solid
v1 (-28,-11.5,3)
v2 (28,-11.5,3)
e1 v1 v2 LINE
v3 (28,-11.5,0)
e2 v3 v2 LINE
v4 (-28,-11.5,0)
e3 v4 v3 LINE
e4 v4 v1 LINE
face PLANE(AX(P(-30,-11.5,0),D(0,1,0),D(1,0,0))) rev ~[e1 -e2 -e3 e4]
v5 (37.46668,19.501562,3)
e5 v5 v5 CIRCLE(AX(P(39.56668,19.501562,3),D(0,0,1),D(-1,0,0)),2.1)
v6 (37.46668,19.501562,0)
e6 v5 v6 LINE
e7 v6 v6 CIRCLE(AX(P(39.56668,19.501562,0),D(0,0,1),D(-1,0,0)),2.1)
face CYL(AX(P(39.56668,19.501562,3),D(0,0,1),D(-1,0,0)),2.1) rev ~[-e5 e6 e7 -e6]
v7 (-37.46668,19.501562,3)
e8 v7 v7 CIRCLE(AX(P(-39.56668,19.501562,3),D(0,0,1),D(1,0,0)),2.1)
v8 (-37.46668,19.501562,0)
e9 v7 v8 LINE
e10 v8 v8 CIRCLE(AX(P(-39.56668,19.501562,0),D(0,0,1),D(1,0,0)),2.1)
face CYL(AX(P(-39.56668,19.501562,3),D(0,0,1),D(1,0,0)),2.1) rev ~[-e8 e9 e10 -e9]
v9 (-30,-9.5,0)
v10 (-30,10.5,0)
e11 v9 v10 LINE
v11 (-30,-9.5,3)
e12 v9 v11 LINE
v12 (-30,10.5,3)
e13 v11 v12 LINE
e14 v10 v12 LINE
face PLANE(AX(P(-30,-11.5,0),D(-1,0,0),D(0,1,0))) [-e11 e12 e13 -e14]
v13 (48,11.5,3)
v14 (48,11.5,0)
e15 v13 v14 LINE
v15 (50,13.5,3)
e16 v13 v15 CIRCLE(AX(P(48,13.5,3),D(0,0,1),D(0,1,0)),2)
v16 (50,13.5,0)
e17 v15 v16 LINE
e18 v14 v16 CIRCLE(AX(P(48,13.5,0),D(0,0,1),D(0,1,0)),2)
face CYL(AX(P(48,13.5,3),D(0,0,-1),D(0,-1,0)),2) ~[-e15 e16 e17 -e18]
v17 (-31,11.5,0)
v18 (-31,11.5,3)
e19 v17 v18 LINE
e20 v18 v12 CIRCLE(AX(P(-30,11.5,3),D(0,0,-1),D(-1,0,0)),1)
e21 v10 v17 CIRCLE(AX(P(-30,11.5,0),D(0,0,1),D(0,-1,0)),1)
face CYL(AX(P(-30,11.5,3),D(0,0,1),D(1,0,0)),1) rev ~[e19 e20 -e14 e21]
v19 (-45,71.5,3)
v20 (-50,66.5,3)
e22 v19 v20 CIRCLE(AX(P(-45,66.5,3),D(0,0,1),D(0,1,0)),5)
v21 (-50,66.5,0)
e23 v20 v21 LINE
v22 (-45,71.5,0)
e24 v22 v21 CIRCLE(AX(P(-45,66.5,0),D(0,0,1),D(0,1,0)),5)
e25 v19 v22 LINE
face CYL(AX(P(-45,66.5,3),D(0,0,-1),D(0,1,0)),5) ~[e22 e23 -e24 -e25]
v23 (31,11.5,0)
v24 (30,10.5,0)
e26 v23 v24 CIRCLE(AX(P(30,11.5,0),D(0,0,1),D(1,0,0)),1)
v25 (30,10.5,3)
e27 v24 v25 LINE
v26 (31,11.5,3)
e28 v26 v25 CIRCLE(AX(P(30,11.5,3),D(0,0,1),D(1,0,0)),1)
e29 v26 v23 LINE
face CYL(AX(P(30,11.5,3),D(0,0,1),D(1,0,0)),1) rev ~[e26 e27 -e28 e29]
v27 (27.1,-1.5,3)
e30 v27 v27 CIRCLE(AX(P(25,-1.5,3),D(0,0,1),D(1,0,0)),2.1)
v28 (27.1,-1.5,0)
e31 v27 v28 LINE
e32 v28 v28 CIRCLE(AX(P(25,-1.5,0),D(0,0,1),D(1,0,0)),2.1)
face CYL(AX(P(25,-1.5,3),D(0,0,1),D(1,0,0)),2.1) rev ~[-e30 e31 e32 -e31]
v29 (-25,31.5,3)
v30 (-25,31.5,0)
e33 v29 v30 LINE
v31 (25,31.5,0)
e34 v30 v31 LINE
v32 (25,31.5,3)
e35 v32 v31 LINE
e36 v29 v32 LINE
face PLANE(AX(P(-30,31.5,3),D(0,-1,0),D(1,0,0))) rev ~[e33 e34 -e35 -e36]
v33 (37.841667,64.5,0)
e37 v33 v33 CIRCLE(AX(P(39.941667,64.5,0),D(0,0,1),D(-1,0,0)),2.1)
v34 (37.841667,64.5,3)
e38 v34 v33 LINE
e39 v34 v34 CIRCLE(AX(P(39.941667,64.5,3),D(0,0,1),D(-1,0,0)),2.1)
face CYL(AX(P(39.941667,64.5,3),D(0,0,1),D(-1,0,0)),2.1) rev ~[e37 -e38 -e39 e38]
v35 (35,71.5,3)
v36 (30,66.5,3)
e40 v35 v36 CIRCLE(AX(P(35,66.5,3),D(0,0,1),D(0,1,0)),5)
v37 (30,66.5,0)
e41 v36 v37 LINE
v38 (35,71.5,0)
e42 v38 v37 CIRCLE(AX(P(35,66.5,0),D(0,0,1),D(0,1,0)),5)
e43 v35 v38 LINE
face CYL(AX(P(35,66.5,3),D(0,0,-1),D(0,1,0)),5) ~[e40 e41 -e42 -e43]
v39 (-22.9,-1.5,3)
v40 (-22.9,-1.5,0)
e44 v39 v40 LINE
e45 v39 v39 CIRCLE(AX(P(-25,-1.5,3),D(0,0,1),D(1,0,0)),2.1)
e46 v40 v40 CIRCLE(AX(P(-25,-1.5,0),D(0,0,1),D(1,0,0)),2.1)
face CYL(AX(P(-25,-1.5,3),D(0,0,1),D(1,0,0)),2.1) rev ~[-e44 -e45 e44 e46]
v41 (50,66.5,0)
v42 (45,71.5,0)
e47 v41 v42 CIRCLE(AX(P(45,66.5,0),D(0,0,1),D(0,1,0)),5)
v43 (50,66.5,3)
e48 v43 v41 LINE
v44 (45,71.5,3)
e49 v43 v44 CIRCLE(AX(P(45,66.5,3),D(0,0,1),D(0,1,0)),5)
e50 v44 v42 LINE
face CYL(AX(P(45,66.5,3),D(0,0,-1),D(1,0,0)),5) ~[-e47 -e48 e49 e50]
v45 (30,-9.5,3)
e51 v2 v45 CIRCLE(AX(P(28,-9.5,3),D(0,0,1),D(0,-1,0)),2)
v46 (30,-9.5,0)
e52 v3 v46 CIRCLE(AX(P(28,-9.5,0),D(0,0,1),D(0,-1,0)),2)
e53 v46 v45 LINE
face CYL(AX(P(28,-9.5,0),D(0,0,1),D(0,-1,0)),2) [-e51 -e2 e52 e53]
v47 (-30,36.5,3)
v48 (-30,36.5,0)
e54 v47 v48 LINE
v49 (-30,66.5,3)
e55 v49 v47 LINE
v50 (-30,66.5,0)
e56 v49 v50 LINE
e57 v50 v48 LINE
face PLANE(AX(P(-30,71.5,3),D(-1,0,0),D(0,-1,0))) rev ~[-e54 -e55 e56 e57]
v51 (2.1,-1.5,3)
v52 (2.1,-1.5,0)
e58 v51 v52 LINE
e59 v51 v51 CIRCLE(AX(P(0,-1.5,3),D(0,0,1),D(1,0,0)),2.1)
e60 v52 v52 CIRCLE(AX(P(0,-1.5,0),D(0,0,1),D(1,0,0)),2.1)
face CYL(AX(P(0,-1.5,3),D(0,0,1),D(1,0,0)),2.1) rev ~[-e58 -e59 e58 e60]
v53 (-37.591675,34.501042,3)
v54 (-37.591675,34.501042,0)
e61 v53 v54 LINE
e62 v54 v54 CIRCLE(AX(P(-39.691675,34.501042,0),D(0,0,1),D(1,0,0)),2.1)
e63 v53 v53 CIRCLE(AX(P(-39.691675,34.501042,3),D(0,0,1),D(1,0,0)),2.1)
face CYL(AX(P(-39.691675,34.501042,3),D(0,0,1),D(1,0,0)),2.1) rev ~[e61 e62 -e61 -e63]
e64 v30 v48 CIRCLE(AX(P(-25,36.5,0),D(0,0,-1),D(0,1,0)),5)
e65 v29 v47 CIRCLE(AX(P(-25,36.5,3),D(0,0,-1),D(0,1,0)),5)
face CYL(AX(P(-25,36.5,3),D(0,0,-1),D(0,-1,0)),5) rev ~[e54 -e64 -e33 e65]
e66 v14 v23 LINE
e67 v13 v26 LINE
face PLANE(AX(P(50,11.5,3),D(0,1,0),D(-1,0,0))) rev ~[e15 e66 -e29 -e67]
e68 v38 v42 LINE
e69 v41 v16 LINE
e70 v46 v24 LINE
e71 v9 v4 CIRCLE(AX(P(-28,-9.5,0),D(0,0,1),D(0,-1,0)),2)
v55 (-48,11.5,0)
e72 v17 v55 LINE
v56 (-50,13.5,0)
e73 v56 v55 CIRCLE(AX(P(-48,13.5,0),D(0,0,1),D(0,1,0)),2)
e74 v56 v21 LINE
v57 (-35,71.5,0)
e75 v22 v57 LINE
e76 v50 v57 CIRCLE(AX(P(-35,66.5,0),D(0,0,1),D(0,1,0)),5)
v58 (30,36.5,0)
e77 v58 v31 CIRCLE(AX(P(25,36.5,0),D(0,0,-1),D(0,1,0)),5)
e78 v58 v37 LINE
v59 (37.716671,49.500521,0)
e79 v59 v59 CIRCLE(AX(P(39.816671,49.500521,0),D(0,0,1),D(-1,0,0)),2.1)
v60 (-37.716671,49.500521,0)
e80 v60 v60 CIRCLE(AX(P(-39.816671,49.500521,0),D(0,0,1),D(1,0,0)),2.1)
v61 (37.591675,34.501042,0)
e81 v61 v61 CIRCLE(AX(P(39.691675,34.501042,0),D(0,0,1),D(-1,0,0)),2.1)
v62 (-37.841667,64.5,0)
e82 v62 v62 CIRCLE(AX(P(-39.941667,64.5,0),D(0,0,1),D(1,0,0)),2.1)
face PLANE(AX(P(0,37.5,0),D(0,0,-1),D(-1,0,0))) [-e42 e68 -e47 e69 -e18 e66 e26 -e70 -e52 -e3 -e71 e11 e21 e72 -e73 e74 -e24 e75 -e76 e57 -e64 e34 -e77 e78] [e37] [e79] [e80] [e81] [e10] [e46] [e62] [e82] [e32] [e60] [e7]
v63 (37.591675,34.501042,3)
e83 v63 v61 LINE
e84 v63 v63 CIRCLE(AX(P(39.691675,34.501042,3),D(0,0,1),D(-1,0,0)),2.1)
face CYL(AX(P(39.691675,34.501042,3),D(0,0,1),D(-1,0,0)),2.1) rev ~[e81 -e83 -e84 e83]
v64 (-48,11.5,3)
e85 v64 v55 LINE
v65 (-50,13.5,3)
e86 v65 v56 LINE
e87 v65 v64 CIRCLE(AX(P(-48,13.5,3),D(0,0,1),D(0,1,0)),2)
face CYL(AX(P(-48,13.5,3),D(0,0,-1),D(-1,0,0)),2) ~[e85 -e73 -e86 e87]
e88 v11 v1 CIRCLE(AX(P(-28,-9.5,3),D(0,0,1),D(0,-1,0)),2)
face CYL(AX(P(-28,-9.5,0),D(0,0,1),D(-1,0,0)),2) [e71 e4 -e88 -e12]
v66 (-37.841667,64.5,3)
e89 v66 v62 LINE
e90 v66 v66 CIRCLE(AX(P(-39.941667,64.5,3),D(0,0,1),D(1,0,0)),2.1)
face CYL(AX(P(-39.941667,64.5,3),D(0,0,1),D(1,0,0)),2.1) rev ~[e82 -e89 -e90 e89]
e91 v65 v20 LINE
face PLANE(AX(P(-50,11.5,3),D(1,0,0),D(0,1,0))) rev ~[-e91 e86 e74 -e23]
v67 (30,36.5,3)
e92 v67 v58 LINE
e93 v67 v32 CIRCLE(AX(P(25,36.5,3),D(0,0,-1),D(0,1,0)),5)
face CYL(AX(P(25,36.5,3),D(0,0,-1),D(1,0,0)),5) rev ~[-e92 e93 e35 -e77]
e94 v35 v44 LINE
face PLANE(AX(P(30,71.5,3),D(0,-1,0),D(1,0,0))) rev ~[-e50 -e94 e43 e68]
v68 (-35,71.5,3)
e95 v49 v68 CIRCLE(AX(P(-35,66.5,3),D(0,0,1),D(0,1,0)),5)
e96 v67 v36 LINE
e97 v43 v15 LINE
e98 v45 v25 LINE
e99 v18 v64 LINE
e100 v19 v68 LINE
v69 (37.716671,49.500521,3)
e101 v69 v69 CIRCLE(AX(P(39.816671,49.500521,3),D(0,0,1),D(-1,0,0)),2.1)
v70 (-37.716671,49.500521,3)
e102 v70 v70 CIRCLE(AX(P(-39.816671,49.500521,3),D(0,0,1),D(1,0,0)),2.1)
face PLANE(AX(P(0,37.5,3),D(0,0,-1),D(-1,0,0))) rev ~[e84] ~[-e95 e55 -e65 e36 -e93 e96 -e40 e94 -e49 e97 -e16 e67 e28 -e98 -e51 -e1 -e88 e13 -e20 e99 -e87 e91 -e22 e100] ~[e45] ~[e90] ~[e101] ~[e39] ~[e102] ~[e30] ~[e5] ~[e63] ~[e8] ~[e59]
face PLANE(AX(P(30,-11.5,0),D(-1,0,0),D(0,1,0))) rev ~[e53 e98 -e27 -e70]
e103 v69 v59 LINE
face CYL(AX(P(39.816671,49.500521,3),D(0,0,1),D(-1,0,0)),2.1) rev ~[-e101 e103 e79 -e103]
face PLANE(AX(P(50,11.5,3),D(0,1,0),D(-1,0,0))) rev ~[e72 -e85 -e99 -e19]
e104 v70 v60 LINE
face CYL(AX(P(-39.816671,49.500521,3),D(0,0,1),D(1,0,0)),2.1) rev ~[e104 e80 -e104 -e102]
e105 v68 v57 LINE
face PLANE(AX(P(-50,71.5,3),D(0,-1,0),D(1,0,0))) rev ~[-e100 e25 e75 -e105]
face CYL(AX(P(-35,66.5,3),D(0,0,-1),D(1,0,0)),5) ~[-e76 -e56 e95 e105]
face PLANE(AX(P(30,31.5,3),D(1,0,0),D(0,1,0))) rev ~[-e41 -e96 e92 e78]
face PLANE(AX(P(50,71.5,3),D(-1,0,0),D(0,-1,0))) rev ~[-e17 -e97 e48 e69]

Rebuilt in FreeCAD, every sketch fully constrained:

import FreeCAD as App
import Part
import Sketcher


def edges_at(feature, points):
    """Names of the edges that pass closest to the given points."""
    edges = feature.Shape.Edges
    near = lambda p: min(range(len(edges)), key=lambda i: edges[i].distToShape(Part.Vertex(*p))[0])
    return sorted({f"Edge{near(p) + 1}" for p in points})

doc = App.newDocument("Part")
body = doc.addObject("PartDesign::Body", "Body")

# Sketch on XY plane
sketch1 = body.newObject("Sketcher::SketchObject", "Sketch")
sketch1.AttachmentSupport = (doc.getObject("XY_Plane"), [""])
sketch1.MapMode = "FlatFace"
sketch1.addGeometry([
    Part.LineSegment(App.Vector(-30, 12, 0), App.Vector(-30, -12, 0)),
    Part.LineSegment(App.Vector(-30, -12, 0), App.Vector(30, -12, 0)),
    Part.LineSegment(App.Vector(30, -12, 0), App.Vector(30, 12, 0)),
    Part.LineSegment(App.Vector(30, 12, 0), App.Vector(-30, 12, 0)),
], False)
sketch1.addConstraint([
    Sketcher.Constraint("Coincident", 0, 2, 1, 1),
    Sketcher.Constraint("Coincident", 1, 2, 2, 1),
    Sketcher.Constraint("Coincident", 2, 2, 3, 1),
    Sketcher.Constraint("Coincident", 3, 2, 0, 1),
    Sketcher.Constraint("Vertical", 0),
    Sketcher.Constraint("Horizontal", 1),
    Sketcher.Constraint("Vertical", 2),
    Sketcher.Constraint("Horizontal", 3),
    Sketcher.Constraint("Symmetric", 0, 2, 2, 2, -1, 1),
    Sketcher.Constraint("DistanceX", 1, 1, 1, 2, 60.0),
    Sketcher.Constraint("DistanceY", 0, 2, 0, 1, 23.0),
])
pad1 = body.newObject("PartDesign::Pad", "Pad")
pad1.Profile = sketch1
pad1.Length = 3

# Sketch on XY plane
sketch2 = body.newObject("Sketcher::SketchObject", "Sketch001")
sketch2.AttachmentSupport = (doc.getObject("XY_Plane"), [""])
sketch2.MapMode = "FlatFace"
sketch2.AttachmentOffset = App.Placement(App.Vector(0, 0, 3), App.Rotation())
sketch2.addGeometry([
    Part.LineSegment(App.Vector(-50, 12, 0), App.Vector(50, 12, 0)),  # 0
    Part.LineSegment(App.Vector(50, 12, 0), App.Vector(50, 72, 0)),  # 1
    Part.LineSegment(App.Vector(50, 72, 0), App.Vector(30, 72, 0)),  # 2
    Part.LineSegment(App.Vector(30, 72, 0), App.Vector(30, 32, 0)),  # 3
    Part.LineSegment(App.Vector(30, 32, 0), App.Vector(-30, 32, 0)),  # 4
    Part.LineSegment(App.Vector(-30, 32, 0), App.Vector(-30, 72, 0)),  # 5
    Part.LineSegment(App.Vector(-30, 72, 0), App.Vector(-50, 72, 0)),  # 6
    Part.LineSegment(App.Vector(-50, 72, 0), App.Vector(-50, 12, 0)),  # 7
], False)
sketch2.addConstraint([
    Sketcher.Constraint("Coincident", 0, 2, 1, 1),
    Sketcher.Constraint("Coincident", 1, 2, 2, 1),
    Sketcher.Constraint("Coincident", 2, 2, 3, 1),
    Sketcher.Constraint("Coincident", 3, 2, 4, 1),
    Sketcher.Constraint("Coincident", 4, 2, 5, 1),
    Sketcher.Constraint("Coincident", 5, 2, 6, 1),
    Sketcher.Constraint("Coincident", 6, 2, 7, 1),
    Sketcher.Constraint("Coincident", 7, 2, 0, 1),
    Sketcher.Constraint("Horizontal", 0),
    Sketcher.Constraint("Vertical", 1),
    Sketcher.Constraint("Horizontal", 2),
    Sketcher.Constraint("Vertical", 3),
    Sketcher.Constraint("Horizontal", 4),
    Sketcher.Constraint("Vertical", 5),
    Sketcher.Constraint("Horizontal", 6),
    Sketcher.Constraint("Vertical", 7),
    Sketcher.Constraint("Symmetric", 2, 2, 5, 2, -2),
    Sketcher.Constraint("Equal", 2, 6),
    Sketcher.Constraint("Equal", 4, 1),
    Sketcher.Constraint("DistanceX", 0, 1, 0, 2, 100.0),
    Sketcher.Constraint("DistanceX", 2, 2, 2, 1, 20.0),
    Sketcher.Constraint("DistanceY", 3, 2, 3, 1, 40.0),
    Sketcher.Constraint("DistanceY", -1, 1, 0, 2, 11.5),
])
pad2 = body.newObject("PartDesign::Pad", "Pad001")
pad2.Profile = sketch2
pad2.Length = 3
pad2.Reversed = True

# Sketch on XY plane
sketch3 = body.newObject("Sketcher::SketchObject", "Sketch002")
sketch3.AttachmentSupport = (doc.getObject("XY_Plane"), [""])
sketch3.MapMode = "FlatFace"
sketch3.AttachmentOffset = App.Placement(App.Vector(0, 0, 3), App.Rotation())
sketch3.addGeometry([
    Part.Circle(App.Vector(-30, 11.5, 0), App.Vector(0, 0, 1), 1),
    Part.Circle(App.Vector(30, 11.5, 0), App.Vector(0, 0, 1), 1),
], False)
sketch3.addConstraint([
    Sketcher.Constraint("Equal", 0, 1),
    Sketcher.Constraint("Symmetric", 0, 3, 1, 3, -2),
    Sketcher.Constraint("Diameter", 0, 2.0),
    Sketcher.Constraint("DistanceX", 0, 3, -1, 1, 30.0),
    Sketcher.Constraint("DistanceY", -1, 1, 0, 3, 11.5),
])
pocket1 = body.newObject("PartDesign::Pocket", "Pocket")
pocket1.Profile = sketch3
pocket1.Type = "ThroughAll"
doc.recompute()

fillet = body.newObject("PartDesign::Fillet", "Fillet")
fillet.Base = (pocket1, edges_at(pocket1, [
    (50, 11.5, 1.5),
    (-50, 11.5, 1.5),
    (30, -11.5, 1.5),
    (-30, -11.5, 1.5),
]))
fillet.Radius = 2

# Sketch on XY plane
sketch4 = body.newObject("Sketcher::SketchObject", "Sketch003")
sketch4.AttachmentSupport = (doc.getObject("XY_Plane"), [""])
sketch4.MapMode = "FlatFace"
sketch4.AttachmentOffset = App.Placement(App.Vector(0, 0, 3), App.Rotation())
sketch4.addGeometry([
    Part.Circle(App.Vector(-25, -1.5, 0), App.Vector(0, 0, 1), 2.1),
    Part.Circle(App.Vector(0, -1.5, 0), App.Vector(0, 0, 1), 2.1),
    Part.Circle(App.Vector(25, -1.5, 0), App.Vector(0, 0, 1), 2.1),
], False)
sketch4.addConstraint([
    Sketcher.Constraint("Equal", 0, 1),
    Sketcher.Constraint("Equal", 1, 2),
    Sketcher.Constraint("Symmetric", 0, 3, 2, 3, -2),
    Sketcher.Constraint("PointOnObject", 1, 3, -2),
    Sketcher.Constraint("Horizontal", 0, 3, 1, 3),
    Sketcher.Constraint("Diameter", 0, 4.2),
    Sketcher.Constraint("DistanceX", 0, 3, -1, 1, 25.0),
    Sketcher.Constraint("DistanceY", 0, 3, -1, 1, 1.5),
])
pocket2 = body.newObject("PartDesign::Pocket", "Pocket001")
pocket2.Profile = sketch4
pocket2.Type = "ThroughAll"

# Sketch on XY plane
sketch5 = body.newObject("Sketcher::SketchObject", "Sketch004")
sketch5.AttachmentSupport = (doc.getObject("XY_Plane"), [""])
sketch5.MapMode = "FlatFace"
sketch5.AttachmentOffset = App.Placement(App.Vector(0, 0, 3), App.Rotation())
sketch5.addGeometry([
    Part.Circle(App.Vector(-39.9, 64.5, 0), App.Vector(0, 0, 1), 2.1),  # 0
    Part.Circle(App.Vector(-39.8, 49.5, 0), App.Vector(0, 0, 1), 2.1),  # 1
    Part.Circle(App.Vector(-39.7, 34.5, 0), App.Vector(0, 0, 1), 2.1),  # 2
    Part.Circle(App.Vector(-39.6, 19.5, 0), App.Vector(0, 0, 1), 2.1),  # 3
    Part.Circle(App.Vector(39.6, 19.5, 0), App.Vector(0, 0, 1), 2.1),  # 4
    Part.Circle(App.Vector(39.7, 34.5, 0), App.Vector(0, 0, 1), 2.1),  # 5
    Part.Circle(App.Vector(39.8, 49.5, 0), App.Vector(0, 0, 1), 2.1),  # 6
    Part.Circle(App.Vector(39.9, 64.5, 0), App.Vector(0, 0, 1), 2.1),  # 7
], False)
sketch5.addConstraint([
    Sketcher.Constraint("Equal", 0, 1),
    Sketcher.Constraint("Equal", 1, 2),
    Sketcher.Constraint("Equal", 2, 3),
    Sketcher.Constraint("Equal", 3, 4),
    Sketcher.Constraint("Equal", 4, 5),
    Sketcher.Constraint("Equal", 5, 6),
    Sketcher.Constraint("Equal", 6, 7),
    Sketcher.Constraint("Symmetric", 3, 3, 4, 3, -2),
    Sketcher.Constraint("Symmetric", 2, 3, 5, 3, -2),
    Sketcher.Constraint("Symmetric", 1, 3, 6, 3, -2),
    Sketcher.Constraint("Symmetric", 0, 3, 7, 3, -2),
    Sketcher.Constraint("Diameter", 0, 4.2),
    Sketcher.Constraint("DistanceY", -1, 1, 0, 3, 64.5),
    Sketcher.Constraint("DistanceX", 1, 3, -1, 1, 39.816671),
    Sketcher.Constraint("DistanceY", -1, 1, 1, 3, 49.500521),
    Sketcher.Constraint("DistanceY", -1, 1, 2, 3, 34.501042),
    Sketcher.Constraint("DistanceX", 3, 3, -1, 1, 39.56668),
    Sketcher.Constraint("DistanceX", 0, 3, 2, 3, 0.249991),
    Sketcher.Constraint("DistanceY", 3, 3, 2, 3, 14.999479),
    Sketcher.Constraint("DistanceX", 2, 3, 5, 3, 79.383351),
])
pocket3 = body.newObject("PartDesign::Pocket", "Pocket002")
pocket3.Profile = sketch5
pocket3.Type = "ThroughAll"
doc.recompute()

fillet2 = body.newObject("PartDesign::Fillet", "Fillet001")
fillet2.Base = (pocket3, edges_at(pocket3, [
    (50, 71.5, 1.5),
    (30, 71.5, 1.5),
    (30, 31.5, 1.5),
    (-30, 31.5, 1.5),
    (-30, 71.5, 1.5),
    (-50, 71.5, 1.5),
]))
fillet2.Radius = 5

doc.recompute()
